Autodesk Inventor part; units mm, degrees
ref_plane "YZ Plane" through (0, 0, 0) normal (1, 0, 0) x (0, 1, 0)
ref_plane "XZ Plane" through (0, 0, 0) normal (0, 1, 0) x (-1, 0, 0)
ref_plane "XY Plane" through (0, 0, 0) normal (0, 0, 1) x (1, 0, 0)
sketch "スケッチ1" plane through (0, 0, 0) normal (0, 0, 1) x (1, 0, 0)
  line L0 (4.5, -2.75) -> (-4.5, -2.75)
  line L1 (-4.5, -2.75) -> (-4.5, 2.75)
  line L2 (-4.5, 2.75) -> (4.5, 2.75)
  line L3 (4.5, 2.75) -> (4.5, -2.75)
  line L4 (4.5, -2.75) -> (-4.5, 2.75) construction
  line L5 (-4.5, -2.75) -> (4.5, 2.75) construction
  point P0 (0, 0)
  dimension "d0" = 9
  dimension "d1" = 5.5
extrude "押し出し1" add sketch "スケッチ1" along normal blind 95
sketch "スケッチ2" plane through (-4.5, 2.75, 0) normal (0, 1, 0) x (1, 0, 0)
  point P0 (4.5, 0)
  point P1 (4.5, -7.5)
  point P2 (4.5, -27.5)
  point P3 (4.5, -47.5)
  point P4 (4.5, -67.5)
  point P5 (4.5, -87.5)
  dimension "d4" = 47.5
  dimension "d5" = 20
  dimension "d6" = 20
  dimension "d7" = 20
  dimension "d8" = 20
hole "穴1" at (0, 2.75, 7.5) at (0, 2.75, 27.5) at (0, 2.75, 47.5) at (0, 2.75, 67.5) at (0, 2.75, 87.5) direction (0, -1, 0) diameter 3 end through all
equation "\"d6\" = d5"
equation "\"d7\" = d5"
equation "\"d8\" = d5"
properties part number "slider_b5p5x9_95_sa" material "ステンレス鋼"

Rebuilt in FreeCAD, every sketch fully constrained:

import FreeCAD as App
import Part
import Sketcher
from FreeCAD import Vector
Q = App.Units.Quantity


def add_polygon(sketch, points):
    """Adds a closed chain of lines whose ends are joined by coincident constraints."""
    first, n = sketch.GeometryCount, len(points)
    for a, b in zip(points, points[1:] + points[:1]):
        sketch.addGeometry(Part.LineSegment(App.Vector(*a, 0), App.Vector(*b, 0)), False)
    for i in range(n):
        sketch.addConstraint(Sketcher.Constraint("Coincident", first + i, 2, first + (i + 1) % n, 1))

doc = App.newDocument("Part")
params = doc.addObject("Spreadsheet::Sheet", "Params")
for row, (alias, value) in enumerate([
    ("sketch1_width", "9 mm"),
    ("sketch1_height", "5.5 mm"),
    ("pad1_length", "95 mm"),
    ("sketch2_diameter", "3 mm"),
    ("hole_diameter", "3 mm"),
], start=1):
    params.set(f"A{row}", alias)
    params.set(f"B{row}", "=" + value)
    params.setAlias(f"B{row}", alias)

body = doc.addObject("PartDesign::Body", "Body")

# Sketch on XY plane
sketch1 = doc.addObject("Sketcher::SketchObject", "Sketch")
body.addObject(sketch1)
sketch1.AttachmentSupport = (doc.XY_Plane, [""])
sketch1.MapMode = "FlatFace"
add_polygon(sketch1, [(-4.5, -2.75), (4.5, -2.75), (4.5, 2.75), (-4.5, 2.75)])  # lines 0-3
sketch1.addConstraint([
    Sketcher.Constraint("Horizontal", 0),
    Sketcher.Constraint("Vertical", 1),
    Sketcher.Constraint("Horizontal", 2),
    Sketcher.Constraint("Vertical", 3),
    Sketcher.Constraint("Symmetric", 0, 2, 2, 2, -1, 1),
    Sketcher.Constraint("DistanceX", 0, 1, 0, 2, Q("9 mm")),
    Sketcher.Constraint("DistanceY", 1, 1, 1, 2, Q("5.5 mm")),
])
sketch1.setExpression("Constraints[9]", "Params.sketch1_width")
sketch1.setExpression("Constraints[10]", "Params.sketch1_height")
pad1 = doc.addObject("PartDesign::Pad", "Pad")
body.addObject(pad1)
pad1.Profile = sketch1
pad1.setExpression("Length", "Params.pad1_length")

# Sketch on XZ plane
sketch2 = doc.addObject("Sketcher::SketchObject", "Sketch001")
body.addObject(sketch2)
sketch2.AttachmentSupport = (doc.XZ_Plane, [""])
sketch2.MapMode = "FlatFace"
sketch2.AttachmentOffset = App.Placement(Vector(0, 0, -2.75), App.Rotation())
sketch2.addGeometry([
    Part.Circle(Vector(0, 7.5, 0), Vector(0, 0, 1), 1.5),  # 0
    Part.Circle(Vector(0, 27.5, 0), Vector(0, 0, 1), 1.5),  # 1
    Part.Circle(Vector(0, 47.5, 0), Vector(0, 0, 1), 1.5),  # 2
    Part.Circle(Vector(0, 67.5, 0), Vector(0, 0, 1), 1.5),  # 3
    Part.Circle(Vector(0, 87.5, 0), Vector(0, 0, 1), 1.5),  # 4
], False)
sketch2.addConstraint([
    Sketcher.Constraint("Equal", 0, 1),
    Sketcher.Constraint("Equal", 1, 2),
    Sketcher.Constraint("Equal", 2, 3),
    Sketcher.Constraint("Equal", 3, 4),
    Sketcher.Constraint("PointOnObject", 0, 3, -2),
    Sketcher.Constraint("PointOnObject", 1, 3, -2),
    Sketcher.Constraint("PointOnObject", 2, 3, -2),
    Sketcher.Constraint("PointOnObject", 3, 3, -2),
    Sketcher.Constraint("PointOnObject", 4, 3, -2),
    Sketcher.Constraint("Diameter", 0, Q("3 mm")),
    Sketcher.Constraint("DistanceY", 0, 3, 1, 3, Q("20 mm")),
    Sketcher.Constraint("DistanceY", 1, 3, 2, 3, Q("20 mm")),
    Sketcher.Constraint("DistanceY", 2, 3, 3, 3, Q("20 mm")),
    Sketcher.Constraint("DistanceY", 3, 3, 4, 3, Q("20 mm")),
    Sketcher.Constraint("DistanceY", -1, 1, 0, 3, Q("7.5 mm")),
])
sketch2.setExpression("Constraints[9]", "Params.sketch2_diameter")
doc.recompute()
hole = doc.addObject("PartDesign::Hole", "Hole")
body.addObject(hole)
hole.Profile = sketch2
hole.ThreadType = "None"
hole.setExpression("Diameter", "Params.hole_diameter")
hole.DepthType = "ThroughAll"
hole.Reversed = True

doc.recompute()
